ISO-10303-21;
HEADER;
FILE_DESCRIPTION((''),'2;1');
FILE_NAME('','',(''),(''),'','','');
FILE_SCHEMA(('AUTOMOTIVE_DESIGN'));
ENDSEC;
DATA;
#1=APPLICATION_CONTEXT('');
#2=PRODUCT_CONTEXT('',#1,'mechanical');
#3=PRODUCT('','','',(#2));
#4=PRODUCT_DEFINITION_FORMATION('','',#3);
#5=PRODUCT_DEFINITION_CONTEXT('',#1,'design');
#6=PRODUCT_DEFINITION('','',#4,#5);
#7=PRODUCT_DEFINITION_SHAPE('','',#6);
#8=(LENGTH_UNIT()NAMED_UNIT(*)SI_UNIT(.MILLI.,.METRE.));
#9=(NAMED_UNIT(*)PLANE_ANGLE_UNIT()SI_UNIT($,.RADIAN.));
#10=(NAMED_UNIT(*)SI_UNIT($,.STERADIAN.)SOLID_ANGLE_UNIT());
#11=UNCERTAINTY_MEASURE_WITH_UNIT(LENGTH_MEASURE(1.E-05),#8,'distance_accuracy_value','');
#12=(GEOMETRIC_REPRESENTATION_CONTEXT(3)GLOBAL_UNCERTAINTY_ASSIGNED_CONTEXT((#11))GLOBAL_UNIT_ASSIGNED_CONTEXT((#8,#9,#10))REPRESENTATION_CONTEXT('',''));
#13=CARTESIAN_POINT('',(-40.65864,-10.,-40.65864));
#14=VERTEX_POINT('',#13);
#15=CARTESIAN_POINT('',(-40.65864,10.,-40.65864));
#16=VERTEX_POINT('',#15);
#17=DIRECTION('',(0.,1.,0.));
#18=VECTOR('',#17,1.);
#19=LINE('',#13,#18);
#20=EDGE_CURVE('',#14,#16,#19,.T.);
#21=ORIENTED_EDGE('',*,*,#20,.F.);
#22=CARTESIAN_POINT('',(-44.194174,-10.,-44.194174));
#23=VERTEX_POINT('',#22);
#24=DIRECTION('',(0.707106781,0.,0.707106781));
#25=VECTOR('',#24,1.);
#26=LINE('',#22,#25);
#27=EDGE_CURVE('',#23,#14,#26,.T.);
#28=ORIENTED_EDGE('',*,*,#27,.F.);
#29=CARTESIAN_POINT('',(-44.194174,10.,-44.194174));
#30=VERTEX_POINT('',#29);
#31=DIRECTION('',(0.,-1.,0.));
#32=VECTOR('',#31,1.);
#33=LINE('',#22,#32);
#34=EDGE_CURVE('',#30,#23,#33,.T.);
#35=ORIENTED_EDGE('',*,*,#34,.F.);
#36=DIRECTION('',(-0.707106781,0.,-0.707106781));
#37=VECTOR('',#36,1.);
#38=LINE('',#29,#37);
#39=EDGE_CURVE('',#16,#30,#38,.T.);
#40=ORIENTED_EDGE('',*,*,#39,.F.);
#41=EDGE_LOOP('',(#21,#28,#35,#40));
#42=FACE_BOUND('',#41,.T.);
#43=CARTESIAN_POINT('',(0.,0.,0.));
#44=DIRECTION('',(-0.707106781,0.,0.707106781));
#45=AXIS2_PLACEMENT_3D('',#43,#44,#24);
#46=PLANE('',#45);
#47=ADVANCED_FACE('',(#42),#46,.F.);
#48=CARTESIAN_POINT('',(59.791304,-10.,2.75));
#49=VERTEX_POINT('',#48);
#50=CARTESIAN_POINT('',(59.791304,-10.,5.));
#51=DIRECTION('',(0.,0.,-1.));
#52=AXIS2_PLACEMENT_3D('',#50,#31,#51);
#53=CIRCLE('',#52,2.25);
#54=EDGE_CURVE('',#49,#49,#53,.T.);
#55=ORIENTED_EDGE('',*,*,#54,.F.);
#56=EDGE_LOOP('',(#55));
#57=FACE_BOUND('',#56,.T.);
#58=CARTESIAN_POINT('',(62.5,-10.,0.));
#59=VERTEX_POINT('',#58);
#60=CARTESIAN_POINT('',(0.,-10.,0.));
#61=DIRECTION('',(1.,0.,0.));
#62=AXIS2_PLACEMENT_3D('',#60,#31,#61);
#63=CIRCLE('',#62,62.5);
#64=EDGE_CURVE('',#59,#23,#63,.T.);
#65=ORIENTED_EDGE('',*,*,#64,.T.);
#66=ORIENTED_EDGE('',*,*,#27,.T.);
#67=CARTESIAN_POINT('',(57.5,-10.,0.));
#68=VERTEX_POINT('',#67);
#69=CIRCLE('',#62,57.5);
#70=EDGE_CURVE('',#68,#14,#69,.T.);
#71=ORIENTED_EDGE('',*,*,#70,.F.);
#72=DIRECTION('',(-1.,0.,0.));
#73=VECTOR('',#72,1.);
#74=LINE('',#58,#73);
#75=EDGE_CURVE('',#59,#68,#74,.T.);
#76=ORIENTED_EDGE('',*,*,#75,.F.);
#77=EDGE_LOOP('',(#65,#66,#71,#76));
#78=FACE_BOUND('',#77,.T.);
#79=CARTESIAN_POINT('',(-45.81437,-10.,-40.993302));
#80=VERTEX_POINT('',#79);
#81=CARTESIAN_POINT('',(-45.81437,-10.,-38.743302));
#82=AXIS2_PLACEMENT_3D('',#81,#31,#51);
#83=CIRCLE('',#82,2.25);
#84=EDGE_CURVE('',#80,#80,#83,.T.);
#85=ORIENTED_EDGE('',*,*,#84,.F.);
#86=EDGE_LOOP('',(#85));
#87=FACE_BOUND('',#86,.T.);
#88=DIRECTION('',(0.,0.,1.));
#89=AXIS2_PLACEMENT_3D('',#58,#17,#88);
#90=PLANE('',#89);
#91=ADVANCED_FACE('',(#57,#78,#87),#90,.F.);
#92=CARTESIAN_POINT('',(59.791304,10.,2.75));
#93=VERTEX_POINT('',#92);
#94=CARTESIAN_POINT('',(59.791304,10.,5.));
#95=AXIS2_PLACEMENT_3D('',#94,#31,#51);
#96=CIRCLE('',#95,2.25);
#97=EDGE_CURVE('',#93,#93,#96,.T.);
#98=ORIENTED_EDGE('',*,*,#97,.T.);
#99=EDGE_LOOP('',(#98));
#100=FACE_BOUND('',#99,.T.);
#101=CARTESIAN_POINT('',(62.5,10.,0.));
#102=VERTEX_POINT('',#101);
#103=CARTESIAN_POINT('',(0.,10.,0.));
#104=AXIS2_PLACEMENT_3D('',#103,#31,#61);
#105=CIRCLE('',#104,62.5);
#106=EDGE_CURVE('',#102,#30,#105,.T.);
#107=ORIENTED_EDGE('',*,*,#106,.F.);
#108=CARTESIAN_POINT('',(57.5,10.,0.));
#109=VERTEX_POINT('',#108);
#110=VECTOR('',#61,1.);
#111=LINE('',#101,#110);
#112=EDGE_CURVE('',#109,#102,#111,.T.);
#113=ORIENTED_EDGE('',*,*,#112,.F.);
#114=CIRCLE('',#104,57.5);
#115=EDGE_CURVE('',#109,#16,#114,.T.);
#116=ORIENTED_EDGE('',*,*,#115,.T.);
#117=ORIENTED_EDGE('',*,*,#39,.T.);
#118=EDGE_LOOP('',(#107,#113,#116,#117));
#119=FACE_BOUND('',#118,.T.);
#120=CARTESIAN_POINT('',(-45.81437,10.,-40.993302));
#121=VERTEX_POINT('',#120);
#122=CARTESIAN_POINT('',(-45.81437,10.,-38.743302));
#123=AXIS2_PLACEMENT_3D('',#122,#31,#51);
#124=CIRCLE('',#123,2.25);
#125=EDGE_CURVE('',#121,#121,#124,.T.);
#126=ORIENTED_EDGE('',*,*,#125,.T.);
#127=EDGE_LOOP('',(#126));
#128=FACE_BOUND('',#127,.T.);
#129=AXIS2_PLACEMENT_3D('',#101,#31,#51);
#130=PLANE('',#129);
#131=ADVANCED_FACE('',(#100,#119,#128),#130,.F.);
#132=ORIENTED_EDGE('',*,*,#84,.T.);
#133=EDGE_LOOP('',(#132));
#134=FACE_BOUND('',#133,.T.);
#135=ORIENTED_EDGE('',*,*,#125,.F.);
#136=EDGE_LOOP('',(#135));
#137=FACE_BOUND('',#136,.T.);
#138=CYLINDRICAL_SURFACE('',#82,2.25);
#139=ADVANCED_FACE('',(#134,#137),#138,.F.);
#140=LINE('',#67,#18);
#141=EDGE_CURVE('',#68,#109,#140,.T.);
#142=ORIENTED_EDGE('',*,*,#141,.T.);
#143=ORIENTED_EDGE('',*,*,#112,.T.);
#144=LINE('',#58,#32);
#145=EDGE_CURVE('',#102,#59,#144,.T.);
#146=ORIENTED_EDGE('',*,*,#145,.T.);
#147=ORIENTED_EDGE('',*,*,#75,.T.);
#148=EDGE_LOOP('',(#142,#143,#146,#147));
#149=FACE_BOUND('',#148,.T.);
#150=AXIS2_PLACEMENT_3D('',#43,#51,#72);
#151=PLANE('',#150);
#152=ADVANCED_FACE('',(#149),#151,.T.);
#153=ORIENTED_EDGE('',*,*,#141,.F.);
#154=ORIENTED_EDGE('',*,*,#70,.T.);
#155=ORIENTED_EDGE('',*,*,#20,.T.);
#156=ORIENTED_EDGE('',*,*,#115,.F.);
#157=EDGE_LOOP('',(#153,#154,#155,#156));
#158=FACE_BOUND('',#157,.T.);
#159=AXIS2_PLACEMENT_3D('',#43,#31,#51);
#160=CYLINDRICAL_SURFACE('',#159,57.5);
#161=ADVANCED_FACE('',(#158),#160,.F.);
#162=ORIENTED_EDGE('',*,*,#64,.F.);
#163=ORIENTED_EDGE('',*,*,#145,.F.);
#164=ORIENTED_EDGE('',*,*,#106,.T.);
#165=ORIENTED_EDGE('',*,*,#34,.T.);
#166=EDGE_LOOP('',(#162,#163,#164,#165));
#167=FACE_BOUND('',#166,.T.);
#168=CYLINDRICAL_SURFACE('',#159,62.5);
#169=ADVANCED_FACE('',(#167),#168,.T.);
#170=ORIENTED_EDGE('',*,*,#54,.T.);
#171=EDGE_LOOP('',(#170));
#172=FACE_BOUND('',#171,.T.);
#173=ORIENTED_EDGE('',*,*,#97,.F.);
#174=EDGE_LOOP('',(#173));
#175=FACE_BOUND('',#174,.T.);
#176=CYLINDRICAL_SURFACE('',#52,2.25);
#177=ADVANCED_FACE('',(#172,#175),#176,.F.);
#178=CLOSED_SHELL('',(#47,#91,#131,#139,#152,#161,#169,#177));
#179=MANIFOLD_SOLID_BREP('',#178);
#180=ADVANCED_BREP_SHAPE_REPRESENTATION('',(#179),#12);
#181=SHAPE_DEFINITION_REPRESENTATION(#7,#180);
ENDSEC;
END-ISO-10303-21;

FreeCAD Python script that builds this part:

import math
import FreeCAD as App
import Part
import Sketcher

V = App.Vector
Q = App.Units.Quantity


def add_polygon(sketch, points):
    """Adds a closed chain of lines whose ends are joined by coincident constraints."""
    first, n = sketch.GeometryCount, len(points)
    for a, b in zip(points, points[1:] + points[:1]):
        sketch.addGeometry(Part.LineSegment(App.Vector(*a, 0), App.Vector(*b, 0)), False)
    for i in range(n):
        sketch.addConstraint(Sketcher.Constraint("Coincident", first + i, 2, first + (i + 1) % n, 1))

doc = App.newDocument("Part")
params = doc.addObject("Spreadsheet::Sheet", "Params")
for row, (alias, value) in enumerate([
    ("sketch1_width", "5 mm"),
    ("sketch1_height", "20 mm"),
    ("sketch2_radius", "60 mm"),
    ("sketch3_diameter", "4.5 mm"),
    ("hole_diameter", "4.5 mm"),
], start=1):
    params.set(f"A{row}", alias)
    params.set(f"B{row}", "=" + value)
    params.setAlias(f"B{row}", alias)

body = doc.addObject("PartDesign::Body", "Body")

# Sketch on XY plane
sketch1 = body.newObject("Sketcher::SketchObject", "Sketch")
sketch1.AttachmentSupport = (doc.getObject("XY_Plane"), [""])
sketch1.MapMode = "FlatFace"
add_polygon(sketch1, [(-62, -10), (-58, -10), (-58, 10), (-62, 10)])  # lines 0-3
sketch1.addConstraint(Sketcher.Constraint("Horizontal", 0))
sketch1.addConstraint(Sketcher.Constraint("Vertical", 1))
sketch1.addConstraint(Sketcher.Constraint("Horizontal", 2))
sketch1.addConstraint(Sketcher.Constraint("Vertical", 3))
sketch1.addConstraint(Sketcher.Constraint("DistanceX", 0, 1, 0, 2, Q("5 mm")))
sketch1.addConstraint(Sketcher.Constraint("DistanceY", 1, 1, 1, 2, Q("20 mm")))
sketch1.addConstraint(Sketcher.Constraint("DistanceY", 0, 2, -1, 1, Q("10 mm")))
sketch1.addConstraint(Sketcher.Constraint("DistanceX", 0, 2, -1, 1, Q("57.5 mm")))
sketch1.setExpression("Constraints[8]", "Params.sketch1_width")
sketch1.setExpression("Constraints[9]", "Params.sketch1_height")

# Sketch on XZ plane
sketch2 = body.newObject("Sketcher::SketchObject", "Sketch001")
sketch2.AttachmentSupport = (doc.getObject("XZ_Plane"), [""])
sketch2.MapMode = "FlatFace"
sketch2.addGeometry(Part.ArcOfCircle(Part.Circle(V(0, 0, 0), V(0, 0, 1), 60), math.radians(0), math.radians(225)), False)
sketch2.addConstraint(Sketcher.Constraint("Coincident", 0, 3, -1, 1))
sketch2.addConstraint(Sketcher.Constraint("PointOnObject", 0, 1, -1))
sketch2.addConstraint(Sketcher.Constraint("Radius", 0, Q("60 mm")))
sketch2.addConstraint(Sketcher.Constraint("DistanceX", 0, 2, -1, 1, Q("42.426407 mm")))
sketch2.setExpression("Constraints[2]", "Params.sketch2_radius")
doc.recompute()

additivepipe = body.newObject("PartDesign::AdditivePipe", "AdditivePipe")
additivepipe.Profile = sketch1
additivepipe.Spine = (sketch2, ["Edge1"])

# Sketch on XZ plane
sketch3 = body.newObject("Sketcher::SketchObject", "Sketch002")
sketch3.AttachmentSupport = (doc.getObject("XZ_Plane"), [""])
sketch3.MapMode = "FlatFace"
sketch3.AttachmentOffset = App.Placement(V(0, 0, 10), App.Rotation())
sketch3.addGeometry(Part.Circle(V(59.8, 5, 0), V(0, 0, 1), 2.2), False)
sketch3.addGeometry(Part.Circle(V(-45.8, -38.7, 0), V(0, 0, 1), 2.2), False)
sketch3.addConstraint(Sketcher.Constraint("Equal", 0, 1))
sketch3.addConstraint(Sketcher.Constraint("Diameter", 0, Q("4.5 mm")))
sketch3.addConstraint(Sketcher.Constraint("DistanceY", -1, 1, 0, 3, Q("5 mm")))
sketch3.addConstraint(Sketcher.Constraint("DistanceX", 1, 3, -1, 1, Q("45.81437 mm")))
sketch3.addConstraint(Sketcher.Constraint("DistanceX", -1, 1, 0, 3, Q("59.791304 mm")))
sketch3.addConstraint(Sketcher.Constraint("DistanceY", 1, 3, -1, 1, Q("38.743302 mm")))
sketch3.setExpression("Constraints[1]", "Params.sketch3_diameter")
doc.recompute()
hole = body.newObject("PartDesign::Hole", "Hole")
hole.Profile = sketch3
hole.ThreadType = "None"
hole.setExpression("Diameter", "Params.hole_diameter")
hole.DepthType = "ThroughAll"

doc.recompute()
